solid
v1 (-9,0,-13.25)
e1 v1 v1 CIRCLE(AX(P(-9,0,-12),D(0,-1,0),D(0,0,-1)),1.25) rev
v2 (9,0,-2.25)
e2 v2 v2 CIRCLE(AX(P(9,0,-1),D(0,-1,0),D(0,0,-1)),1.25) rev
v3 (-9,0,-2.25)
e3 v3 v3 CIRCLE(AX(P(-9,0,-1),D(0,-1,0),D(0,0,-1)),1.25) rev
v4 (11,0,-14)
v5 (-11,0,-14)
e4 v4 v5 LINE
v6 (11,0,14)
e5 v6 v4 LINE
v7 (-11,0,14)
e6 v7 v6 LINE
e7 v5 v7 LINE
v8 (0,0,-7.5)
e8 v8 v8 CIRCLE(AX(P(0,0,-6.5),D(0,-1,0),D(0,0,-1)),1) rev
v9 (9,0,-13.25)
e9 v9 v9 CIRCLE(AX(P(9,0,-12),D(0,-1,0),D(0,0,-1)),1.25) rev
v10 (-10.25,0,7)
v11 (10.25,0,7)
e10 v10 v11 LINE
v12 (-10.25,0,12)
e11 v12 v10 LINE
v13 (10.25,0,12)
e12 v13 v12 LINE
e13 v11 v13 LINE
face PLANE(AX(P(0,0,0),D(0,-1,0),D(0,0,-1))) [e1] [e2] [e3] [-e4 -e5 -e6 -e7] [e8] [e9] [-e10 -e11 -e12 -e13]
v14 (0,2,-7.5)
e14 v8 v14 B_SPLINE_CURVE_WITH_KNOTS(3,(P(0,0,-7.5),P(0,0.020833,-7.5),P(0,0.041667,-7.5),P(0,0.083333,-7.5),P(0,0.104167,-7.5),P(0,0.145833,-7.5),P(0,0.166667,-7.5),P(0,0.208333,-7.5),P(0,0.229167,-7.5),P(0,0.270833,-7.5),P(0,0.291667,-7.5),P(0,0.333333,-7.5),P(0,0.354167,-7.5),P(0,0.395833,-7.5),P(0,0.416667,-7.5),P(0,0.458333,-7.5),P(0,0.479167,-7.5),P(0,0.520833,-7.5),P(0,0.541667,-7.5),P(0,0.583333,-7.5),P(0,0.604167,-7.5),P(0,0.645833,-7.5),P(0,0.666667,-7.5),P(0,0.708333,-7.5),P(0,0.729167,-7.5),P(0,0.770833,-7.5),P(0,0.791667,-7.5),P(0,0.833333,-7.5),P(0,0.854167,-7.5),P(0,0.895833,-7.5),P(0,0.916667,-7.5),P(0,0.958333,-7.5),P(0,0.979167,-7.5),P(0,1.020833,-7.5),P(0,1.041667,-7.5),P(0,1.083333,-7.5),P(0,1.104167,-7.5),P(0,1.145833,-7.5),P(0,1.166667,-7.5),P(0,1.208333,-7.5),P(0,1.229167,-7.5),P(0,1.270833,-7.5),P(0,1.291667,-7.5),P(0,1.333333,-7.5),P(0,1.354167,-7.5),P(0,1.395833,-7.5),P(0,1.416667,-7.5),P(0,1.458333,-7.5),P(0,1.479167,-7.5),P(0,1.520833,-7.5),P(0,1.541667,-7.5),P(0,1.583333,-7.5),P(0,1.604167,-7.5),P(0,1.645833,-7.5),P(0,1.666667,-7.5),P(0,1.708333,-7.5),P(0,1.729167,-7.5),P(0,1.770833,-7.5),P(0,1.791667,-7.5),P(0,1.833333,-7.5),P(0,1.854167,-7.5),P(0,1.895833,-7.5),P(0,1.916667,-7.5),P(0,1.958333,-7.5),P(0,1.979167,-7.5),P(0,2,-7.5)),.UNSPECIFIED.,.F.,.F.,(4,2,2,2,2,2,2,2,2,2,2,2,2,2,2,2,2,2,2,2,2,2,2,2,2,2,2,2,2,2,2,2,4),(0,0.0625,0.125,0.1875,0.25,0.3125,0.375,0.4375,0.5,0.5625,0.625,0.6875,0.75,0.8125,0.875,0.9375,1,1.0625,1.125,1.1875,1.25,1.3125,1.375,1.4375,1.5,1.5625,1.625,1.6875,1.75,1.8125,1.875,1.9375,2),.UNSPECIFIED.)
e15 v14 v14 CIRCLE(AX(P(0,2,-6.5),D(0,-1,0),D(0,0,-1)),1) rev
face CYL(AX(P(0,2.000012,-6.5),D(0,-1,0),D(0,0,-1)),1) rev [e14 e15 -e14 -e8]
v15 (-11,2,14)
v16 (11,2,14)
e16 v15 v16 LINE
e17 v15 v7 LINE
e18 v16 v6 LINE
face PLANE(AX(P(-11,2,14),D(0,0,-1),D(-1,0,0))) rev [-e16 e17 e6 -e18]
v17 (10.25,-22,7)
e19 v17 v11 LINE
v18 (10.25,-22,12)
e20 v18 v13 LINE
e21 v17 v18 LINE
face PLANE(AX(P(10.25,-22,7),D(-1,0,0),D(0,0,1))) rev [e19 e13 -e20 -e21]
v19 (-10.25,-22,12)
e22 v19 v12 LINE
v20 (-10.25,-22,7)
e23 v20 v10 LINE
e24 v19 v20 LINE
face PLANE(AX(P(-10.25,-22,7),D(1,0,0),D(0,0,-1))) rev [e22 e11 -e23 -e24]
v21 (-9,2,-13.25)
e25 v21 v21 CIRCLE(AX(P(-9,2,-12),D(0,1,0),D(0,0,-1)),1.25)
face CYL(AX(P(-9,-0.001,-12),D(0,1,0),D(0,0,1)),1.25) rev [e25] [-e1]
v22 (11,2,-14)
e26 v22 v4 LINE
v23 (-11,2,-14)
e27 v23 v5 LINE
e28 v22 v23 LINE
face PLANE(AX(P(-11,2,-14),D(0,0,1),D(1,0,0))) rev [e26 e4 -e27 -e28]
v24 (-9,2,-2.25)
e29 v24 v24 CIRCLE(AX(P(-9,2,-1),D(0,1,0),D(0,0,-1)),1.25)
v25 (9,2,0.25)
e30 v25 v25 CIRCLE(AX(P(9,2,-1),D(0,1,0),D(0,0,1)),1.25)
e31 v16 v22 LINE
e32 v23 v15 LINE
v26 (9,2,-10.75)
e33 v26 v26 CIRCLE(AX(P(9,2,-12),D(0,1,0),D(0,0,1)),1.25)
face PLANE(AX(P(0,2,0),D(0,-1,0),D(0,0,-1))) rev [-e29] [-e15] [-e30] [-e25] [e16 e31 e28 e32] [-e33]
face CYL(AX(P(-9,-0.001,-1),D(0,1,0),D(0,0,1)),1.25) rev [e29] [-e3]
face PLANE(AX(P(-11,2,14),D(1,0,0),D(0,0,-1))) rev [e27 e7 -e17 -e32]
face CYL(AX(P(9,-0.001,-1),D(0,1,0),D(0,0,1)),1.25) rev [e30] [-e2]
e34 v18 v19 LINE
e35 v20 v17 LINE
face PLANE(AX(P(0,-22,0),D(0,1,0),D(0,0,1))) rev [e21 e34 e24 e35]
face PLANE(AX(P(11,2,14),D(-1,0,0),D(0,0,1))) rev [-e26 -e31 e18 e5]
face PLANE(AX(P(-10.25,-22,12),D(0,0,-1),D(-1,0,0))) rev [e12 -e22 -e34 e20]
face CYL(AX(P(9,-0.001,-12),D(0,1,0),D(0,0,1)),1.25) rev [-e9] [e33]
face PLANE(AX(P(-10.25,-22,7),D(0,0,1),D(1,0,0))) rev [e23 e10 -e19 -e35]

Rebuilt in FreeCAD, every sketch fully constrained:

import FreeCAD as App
import Part
import Sketcher
Q = App.Units.Quantity


def add_polygon(sketch, points):
    """Adds a closed chain of lines whose ends are joined by coincident constraints."""
    first, n = sketch.GeometryCount, len(points)
    for a, b in zip(points, points[1:] + points[:1]):
        sketch.addGeometry(Part.LineSegment(App.Vector(*a, 0), App.Vector(*b, 0)), False)
    for i in range(n):
        sketch.addConstraint(Sketcher.Constraint("Coincident", first + i, 2, first + (i + 1) % n, 1))

doc = App.newDocument("Part")
body = doc.addObject("PartDesign::Body", "Body")

# Sketch on XZ plane
sketch1 = doc.addObject("Sketcher::SketchObject", "Sketch")
body.addObject(sketch1)
sketch1.AttachmentSupport = (doc.XZ_Plane, [""])
sketch1.MapMode = "FlatFace"
add_polygon(sketch1, [(-11, -14), (-11, 14), (11, 14), (11, -14)])  # lines 0-3
sketch1.addConstraint(Sketcher.Constraint("Vertical", 0))
sketch1.addConstraint(Sketcher.Constraint("Horizontal", 1))
sketch1.addConstraint(Sketcher.Constraint("Vertical", 2))
sketch1.addConstraint(Sketcher.Constraint("Horizontal", 3))
sketch1.addConstraint(Sketcher.Constraint("Symmetric", 0, 2, 2, 2, -1, 1))
sketch1.addConstraint(Sketcher.Constraint("DistanceX", 1, 1, 1, 2, Q("22 mm")))
sketch1.addConstraint(Sketcher.Constraint("DistanceY", 0, 1, 0, 2, Q("28 mm")))
pad1 = doc.addObject("PartDesign::Pad", "Pad")
body.addObject(pad1)
pad1.Profile = sketch1
pad1.Length = 2
pad1.Reversed = True

# Sketch on XZ plane
sketch2 = doc.addObject("Sketcher::SketchObject", "Sketch001")
body.addObject(sketch2)
sketch2.AttachmentSupport = (doc.XZ_Plane, [""])
sketch2.MapMode = "FlatFace"
sketch2.AttachmentOffset = App.Placement(App.Vector(0, 0, -2), App.Rotation())
sketch2.addGeometry(Part.Circle(App.Vector(9, -12, 0), App.Vector(0, 0, 1), 1.25), False)
sketch2.addConstraint(Sketcher.Constraint("Diameter", 0, Q("2.5 mm")))
sketch2.addConstraint(Sketcher.Constraint("DistanceX", -1, 1, 0, 3, Q("9 mm")))
sketch2.addConstraint(Sketcher.Constraint("DistanceY", 0, 3, -1, 1, Q("12 mm")))
pocket1 = doc.addObject("PartDesign::Pocket", "Pocket")
body.addObject(pocket1)
pocket1.Profile = sketch2
pocket1.Type = "UpToFirst"
pocket1.Reversed = True

# Sketch on XZ plane
sketch3 = doc.addObject("Sketcher::SketchObject", "Sketch002")
body.addObject(sketch3)
sketch3.AttachmentSupport = (doc.XZ_Plane, [""])
sketch3.MapMode = "FlatFace"
sketch3.AttachmentOffset = App.Placement(App.Vector(0, 0, -2), App.Rotation())
sketch3.addGeometry(Part.Circle(App.Vector(-9, -12, 0), App.Vector(0, 0, 1), 1.25), False)
sketch3.addConstraint(Sketcher.Constraint("Diameter", 0, Q("2.5 mm")))
sketch3.addConstraint(Sketcher.Constraint("DistanceX", 0, 3, -1, 1, Q("9 mm")))
sketch3.addConstraint(Sketcher.Constraint("DistanceY", 0, 3, -1, 1, Q("12 mm")))
pocket2 = doc.addObject("PartDesign::Pocket", "Pocket001")
body.addObject(pocket2)
pocket2.Profile = sketch3
pocket2.Type = "UpToFirst"
pocket2.Reversed = True

# Sketch on XZ plane
sketch4 = doc.addObject("Sketcher::SketchObject", "Sketch003")
body.addObject(sketch4)
sketch4.AttachmentSupport = (doc.XZ_Plane, [""])
sketch4.MapMode = "FlatFace"
sketch4.AttachmentOffset = App.Placement(App.Vector(0, 0, -2), App.Rotation())
sketch4.addGeometry(Part.Circle(App.Vector(-9, -1, 0), App.Vector(0, 0, 1), 1.25), False)
sketch4.addConstraint(Sketcher.Constraint("Diameter", 0, Q("2.5 mm")))
sketch4.addConstraint(Sketcher.Constraint("DistanceX", 0, 3, -1, 1, Q("9 mm")))
sketch4.addConstraint(Sketcher.Constraint("DistanceY", 0, 3, -1, 1, Q("1 mm")))
pocket3 = doc.addObject("PartDesign::Pocket", "Pocket002")
body.addObject(pocket3)
pocket3.Profile = sketch4
pocket3.Type = "UpToFirst"
pocket3.Reversed = True

# Sketch on XZ plane
sketch5 = doc.addObject("Sketcher::SketchObject", "Sketch004")
body.addObject(sketch5)
sketch5.AttachmentSupport = (doc.XZ_Plane, [""])
sketch5.MapMode = "FlatFace"
sketch5.AttachmentOffset = App.Placement(App.Vector(0, 0, -2), App.Rotation())
sketch5.addGeometry(Part.Circle(App.Vector(9, -1, 0), App.Vector(0, 0, 1), 1.25), False)
sketch5.addConstraint(Sketcher.Constraint("Diameter", 0, Q("2.5 mm")))
sketch5.addConstraint(Sketcher.Constraint("DistanceX", -1, 1, 0, 3, Q("9 mm")))
sketch5.addConstraint(Sketcher.Constraint("DistanceY", 0, 3, -1, 1, Q("1 mm")))
pocket4 = doc.addObject("PartDesign::Pocket", "Pocket003")
body.addObject(pocket4)
pocket4.Profile = sketch5
pocket4.Type = "UpToFirst"
pocket4.Reversed = True

# Sketch on XZ plane
sketch6 = doc.addObject("Sketcher::SketchObject", "Sketch005")
body.addObject(sketch6)
sketch6.AttachmentSupport = (doc.XZ_Plane, [""])
sketch6.MapMode = "FlatFace"
add_polygon(sketch6, [(-10.25, 12), (-10.25, 7), (10.25, 7), (10.25, 12)])  # lines 0-3
sketch6.addConstraint(Sketcher.Constraint("Vertical", 0))
sketch6.addConstraint(Sketcher.Constraint("Horizontal", 1))
sketch6.addConstraint(Sketcher.Constraint("Vertical", 2))
sketch6.addConstraint(Sketcher.Constraint("Horizontal", 3))
sketch6.addConstraint(Sketcher.Constraint("DistanceY", 0, 2, 0, 1, Q("5 mm")))
sketch6.addConstraint(Sketcher.Constraint("DistanceX", 1, 1, 1, 2, Q("20.5 mm")))
sketch6.addConstraint(Sketcher.Constraint("DistanceY", -1, 1, 0, 2, Q("7 mm")))
sketch6.addConstraint(Sketcher.Constraint("DistanceX", 0, 2, -1, 1, Q("10.25 mm")))
pad2 = doc.addObject("PartDesign::Pad", "Pad001")
body.addObject(pad2)
pad2.Profile = sketch6
pad2.Length = 22

# Sketch on XZ plane
sketch7 = doc.addObject("Sketcher::SketchObject", "Sketch006")
body.addObject(sketch7)
sketch7.AttachmentSupport = (doc.XZ_Plane, [""])
sketch7.MapMode = "FlatFace"
sketch7.AttachmentOffset = App.Placement(App.Vector(0, 0, -2), App.Rotation())
sketch7.addGeometry(Part.Circle(App.Vector(0, -6.5, 0), App.Vector(0, 0, 1), 1), False)
sketch7.addConstraint(Sketcher.Constraint("PointOnObject", 0, 3, -2))
sketch7.addConstraint(Sketcher.Constraint("Diameter", 0, Q("2 mm")))
sketch7.addConstraint(Sketcher.Constraint("DistanceY", 0, 3, -1, 1, Q("6.5 mm")))
pocket5 = doc.addObject("PartDesign::Pocket", "Pocket004")
body.addObject(pocket5)
pocket5.Profile = sketch7
pocket5.Type = "UpToFirst"
pocket5.Reversed = True

# Sketch on XZ plane
sketch8 = doc.addObject("Sketcher::SketchObject", "Sketch007")
body.addObject(sketch8)
sketch8.AttachmentSupport = (doc.XZ_Plane, [""])
sketch8.MapMode = "FlatFace"
sketch8.AttachmentOffset = App.Placement(App.Vector(0, 0, -2), App.Rotation())
sketch8.addGeometry(Part.Circle(App.Vector(0, -6.5, 0), App.Vector(0, 0, 1), 1), False)
sketch8.addConstraint(Sketcher.Constraint("PointOnObject", 0, 3, -2))
sketch8.addConstraint(Sketcher.Constraint("Diameter", 0, Q("2 mm")))
sketch8.addConstraint(Sketcher.Constraint("DistanceY", 0, 3, -1, 1, Q("6.5 mm")))
pocket6 = doc.addObject("PartDesign::Pocket", "Pocket005")
body.addObject(pocket6)
pocket6.Profile = sketch8
pocket6.Length = 30.883106

doc.recompute()
